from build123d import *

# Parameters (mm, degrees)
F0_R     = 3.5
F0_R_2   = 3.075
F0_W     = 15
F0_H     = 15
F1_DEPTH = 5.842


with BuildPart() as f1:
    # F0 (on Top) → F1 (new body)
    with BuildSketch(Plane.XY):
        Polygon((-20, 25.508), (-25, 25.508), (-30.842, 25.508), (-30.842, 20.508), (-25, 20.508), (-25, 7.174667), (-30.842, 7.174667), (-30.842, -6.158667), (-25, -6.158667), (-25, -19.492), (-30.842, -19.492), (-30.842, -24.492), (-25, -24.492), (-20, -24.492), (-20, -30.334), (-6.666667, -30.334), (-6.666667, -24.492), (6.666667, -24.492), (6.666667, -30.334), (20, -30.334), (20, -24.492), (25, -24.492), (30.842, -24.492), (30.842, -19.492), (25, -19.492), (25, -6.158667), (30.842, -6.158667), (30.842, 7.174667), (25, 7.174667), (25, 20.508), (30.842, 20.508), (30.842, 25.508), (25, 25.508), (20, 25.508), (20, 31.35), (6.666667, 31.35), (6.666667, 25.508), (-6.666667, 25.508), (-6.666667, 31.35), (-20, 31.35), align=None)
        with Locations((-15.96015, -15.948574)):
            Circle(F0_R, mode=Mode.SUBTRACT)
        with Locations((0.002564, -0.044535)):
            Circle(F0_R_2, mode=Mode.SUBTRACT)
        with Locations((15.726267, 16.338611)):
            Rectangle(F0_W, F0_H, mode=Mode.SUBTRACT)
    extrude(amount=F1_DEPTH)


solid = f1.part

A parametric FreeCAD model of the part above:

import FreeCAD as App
import Part
import Sketcher


def add_polygon(sketch, points):
    """Adds a closed chain of lines whose ends are joined by coincident constraints."""
    first, n = sketch.GeometryCount, len(points)
    for a, b in zip(points, points[1:] + points[:1]):
        sketch.addGeometry(Part.LineSegment(App.Vector(*a, 0), App.Vector(*b, 0)), False)
    for i in range(n):
        sketch.addConstraint(Sketcher.Constraint("Coincident", first + i, 2, first + (i + 1) % n, 1))

doc = App.newDocument("Part")
body = doc.addObject("PartDesign::Body", "Body")

# Sketch on XY plane
sketch1 = body.newObject("Sketcher::SketchObject", "Sketch")
sketch1.AttachmentSupport = (doc.getObject("XY_Plane"), [""])
sketch1.MapMode = "FlatFace"
add_polygon(sketch1, [(-20, 25.5), (-30.8, 25.5), (-30.8, 20.5), (-25, 20.5), (-25, 7.2), (-30.8, 7.2), (-30.8, -6.2), (-25, -6.2), (-25, -19.5), (-30.8, -19.5), (-30.8, -24.5), (-20, -24.5), (-20, -30.3), (-6.7, -30.3), (-6.7, -24.5), (6.7, -24.5), (6.7, -30.3), (20, -30.3), (20, -24.5), (30.8, -24.5), (30.8, -19.5), (25, -19.5), (25, -6.2), (30.8, -6.2), (30.8, 7.2), (25, 7.2), (25, 20.5), (30.8, 20.5), (30.8, 25.5), (20, 25.5), (20, 31.4), (6.7, 31.4), (6.7, 25.5), (-6.7, 25.5), (-6.7, 31.4), (-20, 31.4)])  # lines 0-35
sketch1.addGeometry(Part.Circle(App.Vector(-16, -15.9, 0), App.Vector(0, 0, 1), 3.5), False)  # 36
sketch1.addGeometry(Part.Circle(App.Vector(0, 0, 0), App.Vector(0, 0, 1), 3.1), False)  # 37
add_polygon(sketch1, [(23.2, 8.8), (8.2, 8.8), (8.2, 23.8), (23.2, 23.8)])  # lines 38-41
sketch1.addConstraint(Sketcher.Constraint("Horizontal", 0))
sketch1.addConstraint(Sketcher.Constraint("Vertical", 1))
sketch1.addConstraint(Sketcher.Constraint("Horizontal", 2))
sketch1.addConstraint(Sketcher.Constraint("Vertical", 3))
sketch1.addConstraint(Sketcher.Constraint("Horizontal", 4))
sketch1.addConstraint(Sketcher.Constraint("Vertical", 5))
sketch1.addConstraint(Sketcher.Constraint("Horizontal", 6))
sketch1.addConstraint(Sketcher.Constraint("Vertical", 7))
sketch1.addConstraint(Sketcher.Constraint("Horizontal", 8))
sketch1.addConstraint(Sketcher.Constraint("Vertical", 9))
sketch1.addConstraint(Sketcher.Constraint("Horizontal", 10))
sketch1.addConstraint(Sketcher.Constraint("Vertical", 11))
sketch1.addConstraint(Sketcher.Constraint("Horizontal", 12))
sketch1.addConstraint(Sketcher.Constraint("Vertical", 13))
sketch1.addConstraint(Sketcher.Constraint("Horizontal", 14))
sketch1.addConstraint(Sketcher.Constraint("Vertical", 15))
sketch1.addConstraint(Sketcher.Constraint("Horizontal", 16))
sketch1.addConstraint(Sketcher.Constraint("Vertical", 17))
sketch1.addConstraint(Sketcher.Constraint("Horizontal", 18))
sketch1.addConstraint(Sketcher.Constraint("Vertical", 19))
sketch1.addConstraint(Sketcher.Constraint("Horizontal", 20))
sketch1.addConstraint(Sketcher.Constraint("Vertical", 21))
sketch1.addConstraint(Sketcher.Constraint("Horizontal", 22))
sketch1.addConstraint(Sketcher.Constraint("Vertical", 23))
sketch1.addConstraint(Sketcher.Constraint("Horizontal", 24))
sketch1.addConstraint(Sketcher.Constraint("Vertical", 25))
sketch1.addConstraint(Sketcher.Constraint("Horizontal", 26))
sketch1.addConstraint(Sketcher.Constraint("Vertical", 27))
sketch1.addConstraint(Sketcher.Constraint("Horizontal", 28))
sketch1.addConstraint(Sketcher.Constraint("Vertical", 29))
sketch1.addConstraint(Sketcher.Constraint("Horizontal", 30))
sketch1.addConstraint(Sketcher.Constraint("Vertical", 31))
sketch1.addConstraint(Sketcher.Constraint("Horizontal", 32))
sketch1.addConstraint(Sketcher.Constraint("Vertical", 33))
sketch1.addConstraint(Sketcher.Constraint("Horizontal", 34))
sketch1.addConstraint(Sketcher.Constraint("Vertical", 35))
sketch1.addConstraint(Sketcher.Constraint("Horizontal", 38))
sketch1.addConstraint(Sketcher.Constraint("Vertical", 39))
sketch1.addConstraint(Sketcher.Constraint("Horizontal", 40))
sketch1.addConstraint(Sketcher.Constraint("Vertical", 41))
sketch1.addConstraint(Sketcher.Constraint("Symmetric", 12, 2, 15, 2, -2))
sketch1.addConstraint(Sketcher.Constraint("Symmetric", 10, 2, 17, 2, -2))
sketch1.addConstraint(Sketcher.Constraint("Symmetric", 8, 2, 19, 2, -2))
sketch1.addConstraint(Sketcher.Constraint("Symmetric", 6, 2, 21, 2, -2))
sketch1.addConstraint(Sketcher.Constraint("Symmetric", 4, 2, 23, 2, -2))
sketch1.addConstraint(Sketcher.Constraint("Symmetric", 2, 2, 25, 2, -2))
sketch1.addConstraint(Sketcher.Constraint("Symmetric", 0, 2, 27, 2, -2))
sketch1.addConstraint(Sketcher.Constraint("Symmetric", 30, 2, 33, 2, -2))
sketch1.addConstraint(Sketcher.Constraint("Horizontal", 10, 2, 13, 2))
sketch1.addConstraint(Sketcher.Constraint("Horizontal", 28, 2, 31, 2))
sketch1.addConstraint(Sketcher.Constraint("Vertical", 1, 2, 4, 2))
sketch1.addConstraint(Sketcher.Constraint("Vertical", 3, 2, 6, 2))
sketch1.addConstraint(Sketcher.Constraint("Vertical", 5, 2, 8, 2))
sketch1.addConstraint(Sketcher.Constraint("Vertical", 17, 2, 28, 2))
sketch1.addConstraint(Sketcher.Constraint("Vertical", 15, 2, 30, 2))
sketch1.addConstraint(Sketcher.Constraint("Vertical", 11, 2, 34, 2))
sketch1.addConstraint(Sketcher.Constraint("Equal", 12, 14))
sketch1.addConstraint(Sketcher.Constraint("Equal", 34, 3))
sketch1.addConstraint(Sketcher.Constraint("Equal", 3, 5))
sketch1.addConstraint(Sketcher.Constraint("Equal", 5, 7))
sketch1.addConstraint(Sketcher.Constraint("Equal", 1, 9))
sketch1.addConstraint(Sketcher.Constraint("Equal", 26, 11))
sketch1.addConstraint(Sketcher.Constraint("Equal", 17, 29))
sketch1.addConstraint(Sketcher.Constraint("Equal", 40, 39))
sketch1.addConstraint(Sketcher.Constraint("Diameter", 36, 7.0))
sketch1.addConstraint(Sketcher.Constraint("Diameter", 37, 6.15))
sketch1.addConstraint(Sketcher.Constraint("DistanceX", 38, 2, 38, 1, 15.0))
sketch1.addConstraint(Sketcher.Constraint("DistanceY", 1, 2, 1, 1, 5.0))
sketch1.addConstraint(Sketcher.Constraint("DistanceX", 2, 2, -1, 1, 25.0))
sketch1.addConstraint(Sketcher.Constraint("DistanceX", 10, 2, -1, 1, 20.0))
sketch1.addConstraint(Sketcher.Constraint("DistanceX", 0, 2, 0, 1, 10.842))
sketch1.addConstraint(Sketcher.Constraint("DistanceY", -1, 1, 29, 2, 31.35))
sketch1.addConstraint(Sketcher.Constraint("DistanceX", 31, 2, 38, 2, 1.5596))
sketch1.addConstraint(Sketcher.Constraint("DistanceX", 36, 3, -1, 1, 15.96015))
sketch1.addConstraint(Sketcher.Constraint("DistanceY", -1, 1, 38, 2, 8.838611))
sketch1.addConstraint(Sketcher.Constraint("DistanceY", 36, 3, 37, 3, 15.904039))
sketch1.addConstraint(Sketcher.Constraint("DistanceY", 36, 3, 3, 2, 23.123241))
sketch1.addConstraint(Sketcher.Constraint("DistanceX", -1, 1, 37, 3, 0.002564))
pad1 = body.newObject("PartDesign::Pad", "Pad")
pad1.Profile = sketch1
pad1.Length = 5.842

doc.recompute()
